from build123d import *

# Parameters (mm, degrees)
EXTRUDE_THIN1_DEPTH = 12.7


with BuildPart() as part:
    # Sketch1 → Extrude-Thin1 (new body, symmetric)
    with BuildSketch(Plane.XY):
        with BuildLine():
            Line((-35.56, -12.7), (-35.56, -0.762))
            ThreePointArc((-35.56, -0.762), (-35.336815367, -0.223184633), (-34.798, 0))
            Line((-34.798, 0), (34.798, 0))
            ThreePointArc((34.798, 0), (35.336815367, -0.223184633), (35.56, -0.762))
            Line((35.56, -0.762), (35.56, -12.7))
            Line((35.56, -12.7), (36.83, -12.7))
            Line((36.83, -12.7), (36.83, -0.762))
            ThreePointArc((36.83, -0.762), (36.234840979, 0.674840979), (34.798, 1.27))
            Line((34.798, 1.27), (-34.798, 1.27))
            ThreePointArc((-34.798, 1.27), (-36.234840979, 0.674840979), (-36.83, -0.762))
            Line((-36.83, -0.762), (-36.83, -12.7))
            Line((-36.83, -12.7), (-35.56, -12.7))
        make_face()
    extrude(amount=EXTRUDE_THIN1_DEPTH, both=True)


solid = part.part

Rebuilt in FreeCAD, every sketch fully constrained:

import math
import FreeCAD as App
import Part
import Sketcher
from FreeCAD import Vector
Q = App.Units.Quantity

doc = App.newDocument("Part")
body = doc.addObject("PartDesign::Body", "Body")

sketch1 = doc.addObject("Sketcher::SketchObject", "Sketch")
body.addObject(sketch1)
sketch1.AttachmentSupport = (doc.XY_Plane, [""])
sketch1.MapMode = "FlatFace"
sketch1.addGeometry([
    Part.LineSegment(Vector(-35.6, -12.7, 0), Vector(-35.6, -0.8, 0)),
    Part.ArcOfCircle(Part.Circle(Vector(-34.8, -0.8, 0), Vector(0, 0, 1), 0.8), math.radians(90), math.radians(180)),
    Part.LineSegment(Vector(-34.8, 0, 0), Vector(34.8, 0, 0)),
    Part.ArcOfCircle(Part.Circle(Vector(34.8, -0.8, 0), Vector(0, 0, 1), 0.8), math.radians(0), math.radians(90)),
    Part.LineSegment(Vector(35.6, -0.8, 0), Vector(35.6, -12.7, 0)),
    Part.LineSegment(Vector(35.6, -12.7, 0), Vector(36.8, -12.7, 0)),
    Part.LineSegment(Vector(36.8, -12.7, 0), Vector(36.8, -0.8, 0)),
    Part.ArcOfCircle(Part.Circle(Vector(34.8, -0.8, 0), Vector(0, 0, 1), 2), math.radians(0), math.radians(90)),
    Part.LineSegment(Vector(34.8, 1.3, 0), Vector(-34.8, 1.3, 0)),
    Part.ArcOfCircle(Part.Circle(Vector(-34.8, -0.8, 0), Vector(0, 0, 1), 2), math.radians(90), math.radians(180)),
    Part.LineSegment(Vector(-36.8, -0.8, 0), Vector(-36.8, -12.7, 0)),
    Part.LineSegment(Vector(-36.8, -12.7, 0), Vector(-35.6, -12.7, 0)),
], False)
sketch1.addConstraint([
    Sketcher.Constraint("Tangent", 0, 2, 1, 2),
    Sketcher.Constraint("Tangent", 1, 1, 2, 1),
    Sketcher.Constraint("Tangent", 2, 2, 3, 2),
    Sketcher.Constraint("Tangent", 3, 1, 4, 1),
    Sketcher.Constraint("Coincident", 4, 2, 5, 1),
    Sketcher.Constraint("Coincident", 5, 2, 6, 1),
    Sketcher.Constraint("Tangent", 6, 2, 7, 1),
    Sketcher.Constraint("Tangent", 7, 2, 8, 1),
    Sketcher.Constraint("Tangent", 8, 2, 9, 1),
    Sketcher.Constraint("Tangent", 9, 2, 10, 1),
    Sketcher.Constraint("Coincident", 10, 2, 11, 1),
    Sketcher.Constraint("Coincident", 11, 2, 0, 1),
    Sketcher.Constraint("Vertical", 0),
    Sketcher.Constraint("Horizontal", 2),
    Sketcher.Constraint("Vertical", 4),
    Sketcher.Constraint("Horizontal", 5),
    Sketcher.Constraint("Vertical", 6),
    Sketcher.Constraint("Horizontal", 8),
    Sketcher.Constraint("Vertical", 10),
    Sketcher.Constraint("Horizontal", 11),
    Sketcher.Constraint("Coincident", 7, 3, 3, 3),
    Sketcher.Constraint("Coincident", 9, 3, 1, 3),
    Sketcher.Constraint("Equal", 1, 3),
    Sketcher.Constraint("Symmetric", 1, 1, 2, 2, -1, 1),
    Sketcher.Constraint("Horizontal", 5, 2, 10, 2),
    Sketcher.Constraint("Radius", 1, Q("0.03 in")),
    Sketcher.Constraint("Radius", 7, Q("0.08 in")),
    Sketcher.Constraint("DistanceX", 2, 1, 2, 2, Q("2.74 in")),
    Sketcher.Constraint("DistanceY", 0, 1, 0, 2, Q("0.47 in")),
])
pad1 = doc.addObject("PartDesign::Pad", "Pad")
body.addObject(pad1)
pad1.Profile = sketch1
pad1.Length = Q("1 in")
pad1.Midplane = True

doc.recompute()
